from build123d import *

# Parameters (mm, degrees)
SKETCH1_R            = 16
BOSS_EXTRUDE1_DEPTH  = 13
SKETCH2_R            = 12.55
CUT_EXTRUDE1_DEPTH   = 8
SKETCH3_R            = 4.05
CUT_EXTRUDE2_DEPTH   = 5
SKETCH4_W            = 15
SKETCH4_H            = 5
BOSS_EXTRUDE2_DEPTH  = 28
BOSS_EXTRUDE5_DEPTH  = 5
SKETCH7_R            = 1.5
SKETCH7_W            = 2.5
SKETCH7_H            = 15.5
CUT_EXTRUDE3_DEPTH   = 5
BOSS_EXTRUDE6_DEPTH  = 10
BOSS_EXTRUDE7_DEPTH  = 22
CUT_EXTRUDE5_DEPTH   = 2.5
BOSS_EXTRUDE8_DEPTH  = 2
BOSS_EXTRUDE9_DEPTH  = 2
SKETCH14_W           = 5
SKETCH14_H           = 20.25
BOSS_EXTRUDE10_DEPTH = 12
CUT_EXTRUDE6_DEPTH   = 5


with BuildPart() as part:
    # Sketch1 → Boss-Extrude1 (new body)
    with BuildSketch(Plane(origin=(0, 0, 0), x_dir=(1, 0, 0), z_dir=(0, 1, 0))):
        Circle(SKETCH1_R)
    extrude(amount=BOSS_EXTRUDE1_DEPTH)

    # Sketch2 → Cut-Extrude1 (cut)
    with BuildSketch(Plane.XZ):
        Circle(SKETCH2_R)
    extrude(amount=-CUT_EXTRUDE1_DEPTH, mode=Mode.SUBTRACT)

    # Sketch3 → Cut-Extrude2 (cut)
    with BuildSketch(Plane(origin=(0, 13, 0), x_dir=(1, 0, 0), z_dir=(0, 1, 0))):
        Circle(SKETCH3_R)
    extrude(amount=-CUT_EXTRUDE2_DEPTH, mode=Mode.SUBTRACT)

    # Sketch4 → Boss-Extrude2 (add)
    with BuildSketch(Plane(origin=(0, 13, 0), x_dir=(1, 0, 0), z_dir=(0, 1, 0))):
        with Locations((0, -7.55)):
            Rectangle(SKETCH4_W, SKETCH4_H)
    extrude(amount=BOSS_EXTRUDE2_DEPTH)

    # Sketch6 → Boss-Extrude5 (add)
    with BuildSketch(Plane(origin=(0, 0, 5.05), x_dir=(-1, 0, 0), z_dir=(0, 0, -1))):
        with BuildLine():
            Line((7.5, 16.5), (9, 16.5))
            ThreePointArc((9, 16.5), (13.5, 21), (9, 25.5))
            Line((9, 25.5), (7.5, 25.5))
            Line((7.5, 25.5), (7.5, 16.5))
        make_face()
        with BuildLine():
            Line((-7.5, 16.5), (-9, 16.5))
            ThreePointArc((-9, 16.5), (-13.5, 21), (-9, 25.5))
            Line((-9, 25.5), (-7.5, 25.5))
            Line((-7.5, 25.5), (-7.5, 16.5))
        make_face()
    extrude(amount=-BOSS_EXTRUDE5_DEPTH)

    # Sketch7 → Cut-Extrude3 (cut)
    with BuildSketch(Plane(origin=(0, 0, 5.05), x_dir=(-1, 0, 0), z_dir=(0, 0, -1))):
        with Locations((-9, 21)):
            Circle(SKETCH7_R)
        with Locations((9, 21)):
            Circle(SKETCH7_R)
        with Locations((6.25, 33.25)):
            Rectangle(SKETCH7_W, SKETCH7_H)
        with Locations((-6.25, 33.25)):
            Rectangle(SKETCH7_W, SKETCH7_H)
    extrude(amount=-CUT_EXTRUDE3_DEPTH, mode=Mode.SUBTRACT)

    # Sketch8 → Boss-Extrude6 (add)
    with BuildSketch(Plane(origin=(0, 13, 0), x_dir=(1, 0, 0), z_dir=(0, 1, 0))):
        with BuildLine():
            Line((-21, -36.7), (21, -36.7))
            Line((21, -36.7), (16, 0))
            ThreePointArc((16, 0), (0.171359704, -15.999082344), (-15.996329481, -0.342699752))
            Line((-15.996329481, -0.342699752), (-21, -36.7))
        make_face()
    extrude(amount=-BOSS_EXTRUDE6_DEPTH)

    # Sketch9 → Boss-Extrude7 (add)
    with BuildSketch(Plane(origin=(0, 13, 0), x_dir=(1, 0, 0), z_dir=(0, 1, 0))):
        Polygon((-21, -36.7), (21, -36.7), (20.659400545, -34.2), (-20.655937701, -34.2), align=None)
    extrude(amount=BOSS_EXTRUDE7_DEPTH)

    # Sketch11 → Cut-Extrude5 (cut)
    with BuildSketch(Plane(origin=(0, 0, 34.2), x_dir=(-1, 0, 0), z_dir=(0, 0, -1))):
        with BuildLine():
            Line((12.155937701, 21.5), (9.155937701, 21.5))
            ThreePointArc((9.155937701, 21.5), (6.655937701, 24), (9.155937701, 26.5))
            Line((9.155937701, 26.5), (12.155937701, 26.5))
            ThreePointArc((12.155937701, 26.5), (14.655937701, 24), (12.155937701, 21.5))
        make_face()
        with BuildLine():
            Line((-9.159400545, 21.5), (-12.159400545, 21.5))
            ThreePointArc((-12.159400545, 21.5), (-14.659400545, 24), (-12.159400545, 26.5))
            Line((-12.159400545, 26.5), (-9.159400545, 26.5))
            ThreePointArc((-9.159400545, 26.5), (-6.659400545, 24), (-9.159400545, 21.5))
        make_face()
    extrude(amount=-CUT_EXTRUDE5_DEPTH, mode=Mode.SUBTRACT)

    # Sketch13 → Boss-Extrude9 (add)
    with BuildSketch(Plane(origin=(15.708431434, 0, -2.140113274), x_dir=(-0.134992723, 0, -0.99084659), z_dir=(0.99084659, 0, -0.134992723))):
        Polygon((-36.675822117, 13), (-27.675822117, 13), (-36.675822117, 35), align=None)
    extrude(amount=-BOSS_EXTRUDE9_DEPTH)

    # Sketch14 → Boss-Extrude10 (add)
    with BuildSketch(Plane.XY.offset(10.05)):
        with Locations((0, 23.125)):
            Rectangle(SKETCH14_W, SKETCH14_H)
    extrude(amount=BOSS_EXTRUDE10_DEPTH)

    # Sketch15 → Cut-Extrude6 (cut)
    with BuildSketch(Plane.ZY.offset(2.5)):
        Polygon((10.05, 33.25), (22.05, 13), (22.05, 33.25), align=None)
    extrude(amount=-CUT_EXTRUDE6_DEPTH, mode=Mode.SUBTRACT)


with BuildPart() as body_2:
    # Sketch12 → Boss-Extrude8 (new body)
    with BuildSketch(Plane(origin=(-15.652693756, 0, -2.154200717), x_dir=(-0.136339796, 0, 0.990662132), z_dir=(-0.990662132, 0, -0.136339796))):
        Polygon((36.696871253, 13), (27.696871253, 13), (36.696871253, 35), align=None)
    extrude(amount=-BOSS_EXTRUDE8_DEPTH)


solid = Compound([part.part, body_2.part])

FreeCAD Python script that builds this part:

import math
import FreeCAD as App
import Part
import Sketcher
from FreeCAD import Vector

doc = App.newDocument("Part")
body = doc.addObject("PartDesign::Body", "Body")

# Sketch on XZ plane
sketch1 = body.newObject("Sketcher::SketchObject", "Sketch")
sketch1.AttachmentSupport = (doc.getObject("XZ_Plane"), [""])
sketch1.MapMode = "FlatFace"
sketch1.addGeometry(Part.Circle(Vector(0, 0, 0), Vector(0, 0, 1), 16), False)
sketch1.addConstraint([
    Sketcher.Constraint("Coincident", 0, 3, -1, 1),
    Sketcher.Constraint("Diameter", 0, 32.0),
])
pad1 = body.newObject("PartDesign::Pad", "Pad")
pad1.Profile = sketch1
pad1.Length = 13
pad1.Reversed = True

# Sketch on XZ plane
sketch2 = body.newObject("Sketcher::SketchObject", "Sketch001")
sketch2.AttachmentSupport = (doc.getObject("XZ_Plane"), [""])
sketch2.MapMode = "FlatFace"
sketch2.addGeometry(Part.Circle(Vector(0, 0, 0), Vector(0, 0, 1), 13), False)
sketch2.addConstraint([
    Sketcher.Constraint("Coincident", 0, 3, -1, 1),
    Sketcher.Constraint("Diameter", 0, 25.1),
])
pocket1 = body.newObject("PartDesign::Pocket", "Pocket")
pocket1.Profile = sketch2
pocket1.Length = 8

# Sketch on XZ plane
sketch3 = body.newObject("Sketcher::SketchObject", "Sketch002")
sketch3.AttachmentSupport = (doc.getObject("XZ_Plane"), [""])
sketch3.MapMode = "FlatFace"
sketch3.AttachmentOffset = App.Placement(Vector(0, 0, -13), App.Rotation())
sketch3.addGeometry(Part.Circle(Vector(0, 0, 0), Vector(0, 0, 1), 4), False)
sketch3.addConstraint([
    Sketcher.Constraint("Coincident", 0, 3, -1, 1),
    Sketcher.Constraint("Diameter", 0, 8.1),
])
pocket2 = body.newObject("PartDesign::Pocket", "Pocket001")
pocket2.Profile = sketch3
pocket2.Length = 5
pocket2.Reversed = True

# Sketch on XZ plane
sketch4 = body.newObject("Sketcher::SketchObject", "Sketch003")
sketch4.AttachmentSupport = (doc.getObject("XZ_Plane"), [""])
sketch4.MapMode = "FlatFace"
sketch4.AttachmentOffset = App.Placement(Vector(0, 0, -13), App.Rotation())
sketch4.addGeometry([
    Part.LineSegment(Vector(-8, 5, 0), Vector(-8, 10, 0)),
    Part.LineSegment(Vector(-8, 10, 0), Vector(8, 10, 0)),
    Part.LineSegment(Vector(8, 10, 0), Vector(8, 5, 0)),
    Part.LineSegment(Vector(8, 5, 0), Vector(-8, 5, 0)),
], False)
sketch4.addConstraint([
    Sketcher.Constraint("Coincident", 0, 2, 1, 1),
    Sketcher.Constraint("Coincident", 1, 2, 2, 1),
    Sketcher.Constraint("Coincident", 2, 2, 3, 1),
    Sketcher.Constraint("Coincident", 3, 2, 0, 1),
    Sketcher.Constraint("Vertical", 0),
    Sketcher.Constraint("Horizontal", 1),
    Sketcher.Constraint("Vertical", 2),
    Sketcher.Constraint("Horizontal", 3),
    Sketcher.Constraint("DistanceX", 1, 1, 1, 2, 15.0),
    Sketcher.Constraint("DistanceY", 0, 1, 0, 2, 5.0),
    Sketcher.Constraint("DistanceX", 0, 2, -1, 1, 7.5),
    Sketcher.Constraint("DistanceY", -1, 1, 0, 2, 10.05),
])
pad2 = body.newObject("PartDesign::Pad", "Pad001")
pad2.Profile = sketch4
pad2.Length = 28
pad2.Reversed = True

# Sketch on XY plane
sketch5 = body.newObject("Sketcher::SketchObject", "Sketch004")
sketch5.AttachmentSupport = (doc.getObject("XY_Plane"), [""])
sketch5.MapMode = "FlatFace"
sketch5.AttachmentOffset = App.Placement(Vector(0, 0, 5.05), App.Rotation())
sketch5.addGeometry([
    Part.LineSegment(Vector(-7.5, 16.5, 0), Vector(-9, 16.5, 0)),  # 0
    Part.ArcOfCircle(Part.Circle(Vector(-9, 21, 0), Vector(0, 0, 1), 4.5), math.radians(90), math.radians(270)),  # 1
    Part.LineSegment(Vector(-9, 25.5, 0), Vector(-7.5, 25.5, 0)),  # 2
    Part.LineSegment(Vector(-7.5, 25.5, 0), Vector(-7.5, 16.5, 0)),  # 3
    Part.LineSegment(Vector(9, 16.5, 0), Vector(7.5, 16.5, 0)),  # 4
    Part.LineSegment(Vector(7.5, 16.5, 0), Vector(7.5, 25.5, 0)),  # 5
    Part.LineSegment(Vector(7.5, 25.5, 0), Vector(9, 25.5, 0)),  # 6
    Part.ArcOfCircle(Part.Circle(Vector(9, 21, 0), Vector(0, 0, 1), 4.5), math.radians(-90), math.radians(90)),  # 7
], False)
sketch5.addConstraint([
    Sketcher.Constraint("Tangent", 0, 2, 1, 2),
    Sketcher.Constraint("Tangent", 1, 1, 2, 1),
    Sketcher.Constraint("Coincident", 2, 2, 3, 1),
    Sketcher.Constraint("Coincident", 3, 2, 0, 1),
    Sketcher.Constraint("Coincident", 4, 2, 5, 1),
    Sketcher.Constraint("Coincident", 5, 2, 6, 1),
    Sketcher.Constraint("Tangent", 6, 2, 7, 2),
    Sketcher.Constraint("Tangent", 7, 1, 4, 1),
    Sketcher.Constraint("Horizontal", 0),
    Sketcher.Constraint("Horizontal", 2),
    Sketcher.Constraint("Vertical", 3),
    Sketcher.Constraint("Horizontal", 4),
    Sketcher.Constraint("Vertical", 5),
    Sketcher.Constraint("Horizontal", 6),
    Sketcher.Constraint("Equal", 1, 7),
    Sketcher.Constraint("Symmetric", 1, 3, 7, 3, -2),
    Sketcher.Constraint("Equal", 2, 4),
    Sketcher.Constraint("Radius", 1, 4.5),
    Sketcher.Constraint("DistanceX", 0, 2, 0, 1, 1.5),
    Sketcher.Constraint("DistanceX", 1, 3, -1, 1, 9.0),
    Sketcher.Constraint("DistanceY", -1, 1, 1, 3, 21.0),
])
pad3 = body.newObject("PartDesign::Pad", "Pad002")
pad3.Profile = sketch5
pad3.Length = 5

# Sketch on XY plane
sketch6 = body.newObject("Sketcher::SketchObject", "Sketch005")
sketch6.AttachmentSupport = (doc.getObject("XY_Plane"), [""])
sketch6.MapMode = "FlatFace"
sketch6.AttachmentOffset = App.Placement(Vector(0, 0, 5.05), App.Rotation())
sketch6.addGeometry([
    Part.Circle(Vector(9, 21, 0), Vector(0, 0, 1), 1.5),  # 0
    Part.Circle(Vector(-9, 21, 0), Vector(0, 0, 1), 1.5),  # 1
    Part.LineSegment(Vector(-5, 41, 0), Vector(-5, 25.5, 0)),  # 2
    Part.LineSegment(Vector(-5, 25.5, 0), Vector(-7.5, 25.5, 0)),  # 3
    Part.LineSegment(Vector(-7.5, 25.5, 0), Vector(-7.5, 41, 0)),  # 4
    Part.LineSegment(Vector(-7.5, 41, 0), Vector(-5, 41, 0)),  # 5
    Part.LineSegment(Vector(7.5, 41, 0), Vector(7.5, 25.5, 0)),  # 6
    Part.LineSegment(Vector(7.5, 25.5, 0), Vector(5, 25.5, 0)),  # 7
    Part.LineSegment(Vector(5, 25.5, 0), Vector(5, 41, 0)),  # 8
    Part.LineSegment(Vector(5, 41, 0), Vector(7.5, 41, 0)),  # 9
], False)
sketch6.addConstraint([
    Sketcher.Constraint("Coincident", 2, 2, 3, 1),
    Sketcher.Constraint("Coincident", 3, 2, 4, 1),
    Sketcher.Constraint("Coincident", 4, 2, 5, 1),
    Sketcher.Constraint("Coincident", 5, 2, 2, 1),
    Sketcher.Constraint("Coincident", 6, 2, 7, 1),
    Sketcher.Constraint("Coincident", 7, 2, 8, 1),
    Sketcher.Constraint("Coincident", 8, 2, 9, 1),
    Sketcher.Constraint("Coincident", 9, 2, 6, 1),
    Sketcher.Constraint("Vertical", 2),
    Sketcher.Constraint("Horizontal", 3),
    Sketcher.Constraint("Vertical", 4),
    Sketcher.Constraint("Horizontal", 5),
    Sketcher.Constraint("Vertical", 6),
    Sketcher.Constraint("Horizontal", 7),
    Sketcher.Constraint("Vertical", 8),
    Sketcher.Constraint("Horizontal", 9),
    Sketcher.Constraint("Equal", 0, 1),
    Sketcher.Constraint("Symmetric", 0, 3, 1, 3, -2),
    Sketcher.Constraint("Symmetric", 3, 2, 6, 2, -2),
    Sketcher.Constraint("Symmetric", 5, 2, 8, 2, -2),
    Sketcher.Constraint("Diameter", 0, 3.0),
    Sketcher.Constraint("DistanceX", 3, 2, 3, 1, 2.5),
    Sketcher.Constraint("DistanceY", 2, 2, 2, 1, 15.5),
    Sketcher.Constraint("DistanceX", -1, 1, 0, 3, 9.0),
    Sketcher.Constraint("DistanceY", -1, 1, 0, 3, 21.0),
    Sketcher.Constraint("DistanceX", 2, 2, -1, 1, 5.0),
    Sketcher.Constraint("DistanceY", -1, 1, 4, 2, 41.0),
])
pocket3 = body.newObject("PartDesign::Pocket", "Pocket002")
pocket3.Profile = sketch6
pocket3.Length = 5
pocket3.Reversed = True

# Sketch on XZ plane
sketch7 = body.newObject("Sketcher::SketchObject", "Sketch006")
sketch7.AttachmentSupport = (doc.getObject("XZ_Plane"), [""])
sketch7.MapMode = "FlatFace"
sketch7.AttachmentOffset = App.Placement(Vector(0, 0, -13), App.Rotation())
sketch7.addGeometry([
    Part.LineSegment(Vector(-21, 37, 0), Vector(21, 37, 0)),
    Part.LineSegment(Vector(21, 37, 0), Vector(16, 0, 0)),
    Part.ArcOfCircle(Part.Circle(Vector(0, 0, 0), Vector(0, 0, 1), 16), math.radians(0), math.radians(179)),
    Part.LineSegment(Vector(-16, 0, 0), Vector(-21, 37, 0)),
], False)
sketch7.addConstraint([
    Sketcher.Constraint("Coincident", 0, 2, 1, 1),
    Sketcher.Constraint("Coincident", 1, 2, 2, 1),
    Sketcher.Constraint("Coincident", 2, 2, 3, 1),
    Sketcher.Constraint("Coincident", 3, 2, 0, 1),
    Sketcher.Constraint("Horizontal", 0),
    Sketcher.Constraint("Coincident", 2, 3, -1, 1),
    Sketcher.Constraint("PointOnObject", 1, 2, -1),
    Sketcher.Constraint("Radius", 2, 16.0),
    Sketcher.Constraint("DistanceX", 0, 1, 0, 2, 42.0),
    Sketcher.Constraint("DistanceX", -1, 1, 0, 2, 21.0),
    Sketcher.Constraint("Distance", 3, 36.7),
    Sketcher.Constraint("DistanceY", -1, 1, 0, 2, 36.7),
])
pad4 = body.newObject("PartDesign::Pad", "Pad003")
pad4.Profile = sketch7
pad4.Length = 10

# Sketch on XZ plane
sketch8 = body.newObject("Sketcher::SketchObject", "Sketch007")
sketch8.AttachmentSupport = (doc.getObject("XZ_Plane"), [""])
sketch8.MapMode = "FlatFace"
sketch8.AttachmentOffset = App.Placement(Vector(0, 0, -13), App.Rotation())
sketch8.addGeometry([
    Part.LineSegment(Vector(-21, 36.7, 0), Vector(21, 36.7, 0)),
    Part.LineSegment(Vector(21, 36.7, 0), Vector(20.7, 34.2, 0)),
    Part.LineSegment(Vector(20.7, 34.2, 0), Vector(-20.7, 34.2, 0)),
    Part.LineSegment(Vector(-20.7, 34.2, 0), Vector(-21, 36.7, 0)),
], False)
sketch8.addConstraint([
    Sketcher.Constraint("Coincident", 0, 2, 1, 1),
    Sketcher.Constraint("Coincident", 1, 2, 2, 1),
    Sketcher.Constraint("Coincident", 2, 2, 3, 1),
    Sketcher.Constraint("Coincident", 3, 2, 0, 1),
    Sketcher.Constraint("Horizontal", 0),
    Sketcher.Constraint("Horizontal", 2),
    Sketcher.Constraint("DistanceX", 0, 1, 0, 2, 42.0),
    Sketcher.Constraint("DistanceX", -1, 1, 0, 2, 21.0),
    Sketcher.Constraint("DistanceY", -1, 1, 0, 2, 36.7),
    Sketcher.Constraint("DistanceY", -1, 1, 1, 2, 34.2),
    Sketcher.Constraint("DistanceX", 2, 2, 2, 1, 41.315338),
    Sketcher.Constraint("DistanceX", -1, 1, 1, 2, 20.659401),
])
pad5 = body.newObject("PartDesign::Pad", "Pad004")
pad5.Profile = sketch8
pad5.Length = 22
pad5.Reversed = True

# Sketch on XY plane
sketch9 = body.newObject("Sketcher::SketchObject", "Sketch008")
sketch9.AttachmentSupport = (doc.getObject("XY_Plane"), [""])
sketch9.MapMode = "FlatFace"
sketch9.AttachmentOffset = App.Placement(Vector(0, 0, 34.2), App.Rotation())
sketch9.addGeometry([
    Part.LineSegment(Vector(-9.2, 21.5, 0), Vector(-12.2, 21.5, 0)),  # 0
    Part.ArcOfCircle(Part.Circle(Vector(-12.2, 24, 0), Vector(0, 0, 1), 2.5), math.radians(90), math.radians(270)),  # 1
    Part.LineSegment(Vector(-12.2, 26.5, 0), Vector(-9.2, 26.5, 0)),  # 2
    Part.ArcOfCircle(Part.Circle(Vector(-9.2, 24, 0), Vector(0, 0, 1), 2.5), math.radians(-90), math.radians(90)),  # 3
    Part.LineSegment(Vector(12.2, 21.5, 0), Vector(9.2, 21.5, 0)),  # 4
    Part.ArcOfCircle(Part.Circle(Vector(9.2, 24, 0), Vector(0, 0, 1), 2.5), math.radians(90), math.radians(270)),  # 5
    Part.LineSegment(Vector(9.2, 26.5, 0), Vector(12.2, 26.5, 0)),  # 6
    Part.ArcOfCircle(Part.Circle(Vector(12.2, 24, 0), Vector(0, 0, 1), 2.5), math.radians(-90), math.radians(90)),  # 7
], False)
sketch9.addConstraint([
    Sketcher.Constraint("Tangent", 0, 2, 1, 2),
    Sketcher.Constraint("Tangent", 1, 1, 2, 1),
    Sketcher.Constraint("Tangent", 2, 2, 3, 2),
    Sketcher.Constraint("Tangent", 3, 1, 0, 1),
    Sketcher.Constraint("Tangent", 4, 2, 5, 2),
    Sketcher.Constraint("Tangent", 5, 1, 6, 1),
    Sketcher.Constraint("Tangent", 6, 2, 7, 2),
    Sketcher.Constraint("Tangent", 7, 1, 4, 1),
    Sketcher.Constraint("Horizontal", 0),
    Sketcher.Constraint("Horizontal", 2),
    Sketcher.Constraint("Horizontal", 4),
    Sketcher.Constraint("Horizontal", 6),
    Sketcher.Constraint("Equal", 3, 5),
    Sketcher.Constraint("Horizontal", 3, 3, 5, 3),
    Sketcher.Constraint("Equal", 2, 4),
    Sketcher.Constraint("Radius", 1, 2.5),
    Sketcher.Constraint("DistanceX", 0, 2, 0, 1, 3.0),
    Sketcher.Constraint("DistanceY", -1, 1, 1, 3, 24.0),
    Sketcher.Constraint("DistanceX", -1, 1, 5, 3, 9.159401),
    Sketcher.Constraint("DistanceX", 3, 3, 5, 3, 18.315338),
])
pocket4 = body.newObject("PartDesign::Pocket", "Pocket003")
pocket4.Profile = sketch9
pocket4.Length = 2.5
pocket4.Reversed = True

# Sketch on an angled plane
sketch10 = body.newObject("Sketcher::SketchObject", "Sketch009")
sketch10.Placement = App.Placement(Vector(15.708431, 0, -2.140113), App.Rotation(Vector(-0.134992723, 0, -0.99084659), Vector(0, 1, 0), Vector(0.99084659, 0, -0.134992723), "ZXY"))
sketch10.addGeometry([
    Part.LineSegment(Vector(-37, 13, 0), Vector(-28, 13, 0)),
    Part.LineSegment(Vector(-28, 13, 0), Vector(-37, 35, 0)),
    Part.LineSegment(Vector(-37, 35, 0), Vector(-37, 13, 0)),
], False)
sketch10.addConstraint([
    Sketcher.Constraint("Coincident", 0, 2, 1, 1),
    Sketcher.Constraint("Coincident", 1, 2, 2, 1),
    Sketcher.Constraint("Coincident", 2, 2, 0, 1),
    Sketcher.Constraint("Horizontal", 0),
    Sketcher.Constraint("Vertical", 2),
    Sketcher.Constraint("DistanceX", 0, 1, 0, 2, 9.0),
    Sketcher.Constraint("DistanceY", 2, 2, 2, 1, 22.0),
    Sketcher.Constraint("DistanceY", -1, 1, 0, 2, 13.0),
    Sketcher.Constraint("DistanceX", 0, 2, -1, 1, 27.675822),
])
pad6 = body.newObject("PartDesign::Pad", "Pad005")
pad6.Profile = sketch10
pad6.Length = 2
pad6.Reversed = True

# Sketch on XY plane
sketch11 = body.newObject("Sketcher::SketchObject", "Sketch010")
sketch11.AttachmentSupport = (doc.getObject("XY_Plane"), [""])
sketch11.MapMode = "FlatFace"
sketch11.AttachmentOffset = App.Placement(Vector(0, 0, 10.05), App.Rotation())
sketch11.addGeometry([
    Part.LineSegment(Vector(-2, 33, 0), Vector(-2, 13, 0)),
    Part.LineSegment(Vector(-2, 13, 0), Vector(2, 13, 0)),
    Part.LineSegment(Vector(2, 13, 0), Vector(2, 33, 0)),
    Part.LineSegment(Vector(2, 33, 0), Vector(-2, 33, 0)),
], False)
sketch11.addConstraint([
    Sketcher.Constraint("Coincident", 0, 2, 1, 1),
    Sketcher.Constraint("Coincident", 1, 2, 2, 1),
    Sketcher.Constraint("Coincident", 2, 2, 3, 1),
    Sketcher.Constraint("Coincident", 3, 2, 0, 1),
    Sketcher.Constraint("Vertical", 0),
    Sketcher.Constraint("Horizontal", 1),
    Sketcher.Constraint("Vertical", 2),
    Sketcher.Constraint("Horizontal", 3),
    Sketcher.Constraint("DistanceX", 1, 1, 1, 2, 5.0),
    Sketcher.Constraint("DistanceY", -1, 1, 0, 2, 13.0),
    Sketcher.Constraint("DistanceY", 0, 2, 0, 1, 20.25),
    Sketcher.Constraint("DistanceX", 0, 2, -1, 1, 2.5),
])
pad7 = body.newObject("PartDesign::Pad", "Pad006")
pad7.Profile = sketch11
pad7.Length = 12

# Sketch on YZ plane
sketch12 = body.newObject("Sketcher::SketchObject", "Sketch011")
sketch12.AttachmentSupport = (doc.getObject("YZ_Plane"), [""])
sketch12.MapMode = "FlatFace"
sketch12.AttachmentOffset = App.Placement(Vector(0, 0, -2.5), App.Rotation())
sketch12.addGeometry([
    Part.LineSegment(Vector(33, 10, 0), Vector(13, 22, 0)),
    Part.LineSegment(Vector(13, 22, 0), Vector(33, 22, 0)),
    Part.LineSegment(Vector(33, 22, 0), Vector(33, 10, 0)),
], False)
sketch12.addConstraint([
    Sketcher.Constraint("Coincident", 0, 2, 1, 1),
    Sketcher.Constraint("Coincident", 1, 2, 2, 1),
    Sketcher.Constraint("Coincident", 2, 2, 0, 1),
    Sketcher.Constraint("Horizontal", 1),
    Sketcher.Constraint("Vertical", 2),
    Sketcher.Constraint("DistanceY", 2, 2, 2, 1, 12.0),
    Sketcher.Constraint("DistanceX", -1, 1, 0, 2, 13.0),
    Sketcher.Constraint("DistanceX", 1, 1, 1, 2, 20.25),
    Sketcher.Constraint("DistanceY", -1, 1, 0, 2, 22.05),
])
pocket5 = body.newObject("PartDesign::Pocket", "Pocket004")
pocket5.Profile = sketch12
pocket5.Length = 5
pocket5.Reversed = True
body2 = doc.addObject("PartDesign::Body", "Body001")

# Sketch on an angled plane
sketch13 = body2.newObject("Sketcher::SketchObject", "Sketch012")
sketch13.Placement = App.Placement(Vector(-15.652694, 0, -2.154201), App.Rotation(Vector(-0.136339796, 0, 0.990662132), Vector(0, 1, 0), Vector(-0.990662132, 0, -0.136339796), "ZXY"))
sketch13.addGeometry([
    Part.LineSegment(Vector(28, 13, 0), Vector(37, 13, 0)),
    Part.LineSegment(Vector(37, 13, 0), Vector(37, 35, 0)),
    Part.LineSegment(Vector(37, 35, 0), Vector(28, 13, 0)),
], False)
sketch13.addConstraint([
    Sketcher.Constraint("Coincident", 0, 2, 1, 1),
    Sketcher.Constraint("Coincident", 1, 2, 2, 1),
    Sketcher.Constraint("Coincident", 2, 2, 0, 1),
    Sketcher.Constraint("Horizontal", 0),
    Sketcher.Constraint("Vertical", 1),
    Sketcher.Constraint("DistanceX", 0, 1, 0, 2, 9.0),
    Sketcher.Constraint("DistanceY", 1, 1, 1, 2, 22.0),
    Sketcher.Constraint("DistanceY", -1, 1, 0, 2, 13.0),
    Sketcher.Constraint("DistanceX", -1, 1, 0, 2, 36.696871),
])
pad8 = body2.newObject("PartDesign::Pad", "Pad007")
pad8.Profile = sketch13
pad8.Length = 2
pad8.Reversed = True

doc.recompute()
